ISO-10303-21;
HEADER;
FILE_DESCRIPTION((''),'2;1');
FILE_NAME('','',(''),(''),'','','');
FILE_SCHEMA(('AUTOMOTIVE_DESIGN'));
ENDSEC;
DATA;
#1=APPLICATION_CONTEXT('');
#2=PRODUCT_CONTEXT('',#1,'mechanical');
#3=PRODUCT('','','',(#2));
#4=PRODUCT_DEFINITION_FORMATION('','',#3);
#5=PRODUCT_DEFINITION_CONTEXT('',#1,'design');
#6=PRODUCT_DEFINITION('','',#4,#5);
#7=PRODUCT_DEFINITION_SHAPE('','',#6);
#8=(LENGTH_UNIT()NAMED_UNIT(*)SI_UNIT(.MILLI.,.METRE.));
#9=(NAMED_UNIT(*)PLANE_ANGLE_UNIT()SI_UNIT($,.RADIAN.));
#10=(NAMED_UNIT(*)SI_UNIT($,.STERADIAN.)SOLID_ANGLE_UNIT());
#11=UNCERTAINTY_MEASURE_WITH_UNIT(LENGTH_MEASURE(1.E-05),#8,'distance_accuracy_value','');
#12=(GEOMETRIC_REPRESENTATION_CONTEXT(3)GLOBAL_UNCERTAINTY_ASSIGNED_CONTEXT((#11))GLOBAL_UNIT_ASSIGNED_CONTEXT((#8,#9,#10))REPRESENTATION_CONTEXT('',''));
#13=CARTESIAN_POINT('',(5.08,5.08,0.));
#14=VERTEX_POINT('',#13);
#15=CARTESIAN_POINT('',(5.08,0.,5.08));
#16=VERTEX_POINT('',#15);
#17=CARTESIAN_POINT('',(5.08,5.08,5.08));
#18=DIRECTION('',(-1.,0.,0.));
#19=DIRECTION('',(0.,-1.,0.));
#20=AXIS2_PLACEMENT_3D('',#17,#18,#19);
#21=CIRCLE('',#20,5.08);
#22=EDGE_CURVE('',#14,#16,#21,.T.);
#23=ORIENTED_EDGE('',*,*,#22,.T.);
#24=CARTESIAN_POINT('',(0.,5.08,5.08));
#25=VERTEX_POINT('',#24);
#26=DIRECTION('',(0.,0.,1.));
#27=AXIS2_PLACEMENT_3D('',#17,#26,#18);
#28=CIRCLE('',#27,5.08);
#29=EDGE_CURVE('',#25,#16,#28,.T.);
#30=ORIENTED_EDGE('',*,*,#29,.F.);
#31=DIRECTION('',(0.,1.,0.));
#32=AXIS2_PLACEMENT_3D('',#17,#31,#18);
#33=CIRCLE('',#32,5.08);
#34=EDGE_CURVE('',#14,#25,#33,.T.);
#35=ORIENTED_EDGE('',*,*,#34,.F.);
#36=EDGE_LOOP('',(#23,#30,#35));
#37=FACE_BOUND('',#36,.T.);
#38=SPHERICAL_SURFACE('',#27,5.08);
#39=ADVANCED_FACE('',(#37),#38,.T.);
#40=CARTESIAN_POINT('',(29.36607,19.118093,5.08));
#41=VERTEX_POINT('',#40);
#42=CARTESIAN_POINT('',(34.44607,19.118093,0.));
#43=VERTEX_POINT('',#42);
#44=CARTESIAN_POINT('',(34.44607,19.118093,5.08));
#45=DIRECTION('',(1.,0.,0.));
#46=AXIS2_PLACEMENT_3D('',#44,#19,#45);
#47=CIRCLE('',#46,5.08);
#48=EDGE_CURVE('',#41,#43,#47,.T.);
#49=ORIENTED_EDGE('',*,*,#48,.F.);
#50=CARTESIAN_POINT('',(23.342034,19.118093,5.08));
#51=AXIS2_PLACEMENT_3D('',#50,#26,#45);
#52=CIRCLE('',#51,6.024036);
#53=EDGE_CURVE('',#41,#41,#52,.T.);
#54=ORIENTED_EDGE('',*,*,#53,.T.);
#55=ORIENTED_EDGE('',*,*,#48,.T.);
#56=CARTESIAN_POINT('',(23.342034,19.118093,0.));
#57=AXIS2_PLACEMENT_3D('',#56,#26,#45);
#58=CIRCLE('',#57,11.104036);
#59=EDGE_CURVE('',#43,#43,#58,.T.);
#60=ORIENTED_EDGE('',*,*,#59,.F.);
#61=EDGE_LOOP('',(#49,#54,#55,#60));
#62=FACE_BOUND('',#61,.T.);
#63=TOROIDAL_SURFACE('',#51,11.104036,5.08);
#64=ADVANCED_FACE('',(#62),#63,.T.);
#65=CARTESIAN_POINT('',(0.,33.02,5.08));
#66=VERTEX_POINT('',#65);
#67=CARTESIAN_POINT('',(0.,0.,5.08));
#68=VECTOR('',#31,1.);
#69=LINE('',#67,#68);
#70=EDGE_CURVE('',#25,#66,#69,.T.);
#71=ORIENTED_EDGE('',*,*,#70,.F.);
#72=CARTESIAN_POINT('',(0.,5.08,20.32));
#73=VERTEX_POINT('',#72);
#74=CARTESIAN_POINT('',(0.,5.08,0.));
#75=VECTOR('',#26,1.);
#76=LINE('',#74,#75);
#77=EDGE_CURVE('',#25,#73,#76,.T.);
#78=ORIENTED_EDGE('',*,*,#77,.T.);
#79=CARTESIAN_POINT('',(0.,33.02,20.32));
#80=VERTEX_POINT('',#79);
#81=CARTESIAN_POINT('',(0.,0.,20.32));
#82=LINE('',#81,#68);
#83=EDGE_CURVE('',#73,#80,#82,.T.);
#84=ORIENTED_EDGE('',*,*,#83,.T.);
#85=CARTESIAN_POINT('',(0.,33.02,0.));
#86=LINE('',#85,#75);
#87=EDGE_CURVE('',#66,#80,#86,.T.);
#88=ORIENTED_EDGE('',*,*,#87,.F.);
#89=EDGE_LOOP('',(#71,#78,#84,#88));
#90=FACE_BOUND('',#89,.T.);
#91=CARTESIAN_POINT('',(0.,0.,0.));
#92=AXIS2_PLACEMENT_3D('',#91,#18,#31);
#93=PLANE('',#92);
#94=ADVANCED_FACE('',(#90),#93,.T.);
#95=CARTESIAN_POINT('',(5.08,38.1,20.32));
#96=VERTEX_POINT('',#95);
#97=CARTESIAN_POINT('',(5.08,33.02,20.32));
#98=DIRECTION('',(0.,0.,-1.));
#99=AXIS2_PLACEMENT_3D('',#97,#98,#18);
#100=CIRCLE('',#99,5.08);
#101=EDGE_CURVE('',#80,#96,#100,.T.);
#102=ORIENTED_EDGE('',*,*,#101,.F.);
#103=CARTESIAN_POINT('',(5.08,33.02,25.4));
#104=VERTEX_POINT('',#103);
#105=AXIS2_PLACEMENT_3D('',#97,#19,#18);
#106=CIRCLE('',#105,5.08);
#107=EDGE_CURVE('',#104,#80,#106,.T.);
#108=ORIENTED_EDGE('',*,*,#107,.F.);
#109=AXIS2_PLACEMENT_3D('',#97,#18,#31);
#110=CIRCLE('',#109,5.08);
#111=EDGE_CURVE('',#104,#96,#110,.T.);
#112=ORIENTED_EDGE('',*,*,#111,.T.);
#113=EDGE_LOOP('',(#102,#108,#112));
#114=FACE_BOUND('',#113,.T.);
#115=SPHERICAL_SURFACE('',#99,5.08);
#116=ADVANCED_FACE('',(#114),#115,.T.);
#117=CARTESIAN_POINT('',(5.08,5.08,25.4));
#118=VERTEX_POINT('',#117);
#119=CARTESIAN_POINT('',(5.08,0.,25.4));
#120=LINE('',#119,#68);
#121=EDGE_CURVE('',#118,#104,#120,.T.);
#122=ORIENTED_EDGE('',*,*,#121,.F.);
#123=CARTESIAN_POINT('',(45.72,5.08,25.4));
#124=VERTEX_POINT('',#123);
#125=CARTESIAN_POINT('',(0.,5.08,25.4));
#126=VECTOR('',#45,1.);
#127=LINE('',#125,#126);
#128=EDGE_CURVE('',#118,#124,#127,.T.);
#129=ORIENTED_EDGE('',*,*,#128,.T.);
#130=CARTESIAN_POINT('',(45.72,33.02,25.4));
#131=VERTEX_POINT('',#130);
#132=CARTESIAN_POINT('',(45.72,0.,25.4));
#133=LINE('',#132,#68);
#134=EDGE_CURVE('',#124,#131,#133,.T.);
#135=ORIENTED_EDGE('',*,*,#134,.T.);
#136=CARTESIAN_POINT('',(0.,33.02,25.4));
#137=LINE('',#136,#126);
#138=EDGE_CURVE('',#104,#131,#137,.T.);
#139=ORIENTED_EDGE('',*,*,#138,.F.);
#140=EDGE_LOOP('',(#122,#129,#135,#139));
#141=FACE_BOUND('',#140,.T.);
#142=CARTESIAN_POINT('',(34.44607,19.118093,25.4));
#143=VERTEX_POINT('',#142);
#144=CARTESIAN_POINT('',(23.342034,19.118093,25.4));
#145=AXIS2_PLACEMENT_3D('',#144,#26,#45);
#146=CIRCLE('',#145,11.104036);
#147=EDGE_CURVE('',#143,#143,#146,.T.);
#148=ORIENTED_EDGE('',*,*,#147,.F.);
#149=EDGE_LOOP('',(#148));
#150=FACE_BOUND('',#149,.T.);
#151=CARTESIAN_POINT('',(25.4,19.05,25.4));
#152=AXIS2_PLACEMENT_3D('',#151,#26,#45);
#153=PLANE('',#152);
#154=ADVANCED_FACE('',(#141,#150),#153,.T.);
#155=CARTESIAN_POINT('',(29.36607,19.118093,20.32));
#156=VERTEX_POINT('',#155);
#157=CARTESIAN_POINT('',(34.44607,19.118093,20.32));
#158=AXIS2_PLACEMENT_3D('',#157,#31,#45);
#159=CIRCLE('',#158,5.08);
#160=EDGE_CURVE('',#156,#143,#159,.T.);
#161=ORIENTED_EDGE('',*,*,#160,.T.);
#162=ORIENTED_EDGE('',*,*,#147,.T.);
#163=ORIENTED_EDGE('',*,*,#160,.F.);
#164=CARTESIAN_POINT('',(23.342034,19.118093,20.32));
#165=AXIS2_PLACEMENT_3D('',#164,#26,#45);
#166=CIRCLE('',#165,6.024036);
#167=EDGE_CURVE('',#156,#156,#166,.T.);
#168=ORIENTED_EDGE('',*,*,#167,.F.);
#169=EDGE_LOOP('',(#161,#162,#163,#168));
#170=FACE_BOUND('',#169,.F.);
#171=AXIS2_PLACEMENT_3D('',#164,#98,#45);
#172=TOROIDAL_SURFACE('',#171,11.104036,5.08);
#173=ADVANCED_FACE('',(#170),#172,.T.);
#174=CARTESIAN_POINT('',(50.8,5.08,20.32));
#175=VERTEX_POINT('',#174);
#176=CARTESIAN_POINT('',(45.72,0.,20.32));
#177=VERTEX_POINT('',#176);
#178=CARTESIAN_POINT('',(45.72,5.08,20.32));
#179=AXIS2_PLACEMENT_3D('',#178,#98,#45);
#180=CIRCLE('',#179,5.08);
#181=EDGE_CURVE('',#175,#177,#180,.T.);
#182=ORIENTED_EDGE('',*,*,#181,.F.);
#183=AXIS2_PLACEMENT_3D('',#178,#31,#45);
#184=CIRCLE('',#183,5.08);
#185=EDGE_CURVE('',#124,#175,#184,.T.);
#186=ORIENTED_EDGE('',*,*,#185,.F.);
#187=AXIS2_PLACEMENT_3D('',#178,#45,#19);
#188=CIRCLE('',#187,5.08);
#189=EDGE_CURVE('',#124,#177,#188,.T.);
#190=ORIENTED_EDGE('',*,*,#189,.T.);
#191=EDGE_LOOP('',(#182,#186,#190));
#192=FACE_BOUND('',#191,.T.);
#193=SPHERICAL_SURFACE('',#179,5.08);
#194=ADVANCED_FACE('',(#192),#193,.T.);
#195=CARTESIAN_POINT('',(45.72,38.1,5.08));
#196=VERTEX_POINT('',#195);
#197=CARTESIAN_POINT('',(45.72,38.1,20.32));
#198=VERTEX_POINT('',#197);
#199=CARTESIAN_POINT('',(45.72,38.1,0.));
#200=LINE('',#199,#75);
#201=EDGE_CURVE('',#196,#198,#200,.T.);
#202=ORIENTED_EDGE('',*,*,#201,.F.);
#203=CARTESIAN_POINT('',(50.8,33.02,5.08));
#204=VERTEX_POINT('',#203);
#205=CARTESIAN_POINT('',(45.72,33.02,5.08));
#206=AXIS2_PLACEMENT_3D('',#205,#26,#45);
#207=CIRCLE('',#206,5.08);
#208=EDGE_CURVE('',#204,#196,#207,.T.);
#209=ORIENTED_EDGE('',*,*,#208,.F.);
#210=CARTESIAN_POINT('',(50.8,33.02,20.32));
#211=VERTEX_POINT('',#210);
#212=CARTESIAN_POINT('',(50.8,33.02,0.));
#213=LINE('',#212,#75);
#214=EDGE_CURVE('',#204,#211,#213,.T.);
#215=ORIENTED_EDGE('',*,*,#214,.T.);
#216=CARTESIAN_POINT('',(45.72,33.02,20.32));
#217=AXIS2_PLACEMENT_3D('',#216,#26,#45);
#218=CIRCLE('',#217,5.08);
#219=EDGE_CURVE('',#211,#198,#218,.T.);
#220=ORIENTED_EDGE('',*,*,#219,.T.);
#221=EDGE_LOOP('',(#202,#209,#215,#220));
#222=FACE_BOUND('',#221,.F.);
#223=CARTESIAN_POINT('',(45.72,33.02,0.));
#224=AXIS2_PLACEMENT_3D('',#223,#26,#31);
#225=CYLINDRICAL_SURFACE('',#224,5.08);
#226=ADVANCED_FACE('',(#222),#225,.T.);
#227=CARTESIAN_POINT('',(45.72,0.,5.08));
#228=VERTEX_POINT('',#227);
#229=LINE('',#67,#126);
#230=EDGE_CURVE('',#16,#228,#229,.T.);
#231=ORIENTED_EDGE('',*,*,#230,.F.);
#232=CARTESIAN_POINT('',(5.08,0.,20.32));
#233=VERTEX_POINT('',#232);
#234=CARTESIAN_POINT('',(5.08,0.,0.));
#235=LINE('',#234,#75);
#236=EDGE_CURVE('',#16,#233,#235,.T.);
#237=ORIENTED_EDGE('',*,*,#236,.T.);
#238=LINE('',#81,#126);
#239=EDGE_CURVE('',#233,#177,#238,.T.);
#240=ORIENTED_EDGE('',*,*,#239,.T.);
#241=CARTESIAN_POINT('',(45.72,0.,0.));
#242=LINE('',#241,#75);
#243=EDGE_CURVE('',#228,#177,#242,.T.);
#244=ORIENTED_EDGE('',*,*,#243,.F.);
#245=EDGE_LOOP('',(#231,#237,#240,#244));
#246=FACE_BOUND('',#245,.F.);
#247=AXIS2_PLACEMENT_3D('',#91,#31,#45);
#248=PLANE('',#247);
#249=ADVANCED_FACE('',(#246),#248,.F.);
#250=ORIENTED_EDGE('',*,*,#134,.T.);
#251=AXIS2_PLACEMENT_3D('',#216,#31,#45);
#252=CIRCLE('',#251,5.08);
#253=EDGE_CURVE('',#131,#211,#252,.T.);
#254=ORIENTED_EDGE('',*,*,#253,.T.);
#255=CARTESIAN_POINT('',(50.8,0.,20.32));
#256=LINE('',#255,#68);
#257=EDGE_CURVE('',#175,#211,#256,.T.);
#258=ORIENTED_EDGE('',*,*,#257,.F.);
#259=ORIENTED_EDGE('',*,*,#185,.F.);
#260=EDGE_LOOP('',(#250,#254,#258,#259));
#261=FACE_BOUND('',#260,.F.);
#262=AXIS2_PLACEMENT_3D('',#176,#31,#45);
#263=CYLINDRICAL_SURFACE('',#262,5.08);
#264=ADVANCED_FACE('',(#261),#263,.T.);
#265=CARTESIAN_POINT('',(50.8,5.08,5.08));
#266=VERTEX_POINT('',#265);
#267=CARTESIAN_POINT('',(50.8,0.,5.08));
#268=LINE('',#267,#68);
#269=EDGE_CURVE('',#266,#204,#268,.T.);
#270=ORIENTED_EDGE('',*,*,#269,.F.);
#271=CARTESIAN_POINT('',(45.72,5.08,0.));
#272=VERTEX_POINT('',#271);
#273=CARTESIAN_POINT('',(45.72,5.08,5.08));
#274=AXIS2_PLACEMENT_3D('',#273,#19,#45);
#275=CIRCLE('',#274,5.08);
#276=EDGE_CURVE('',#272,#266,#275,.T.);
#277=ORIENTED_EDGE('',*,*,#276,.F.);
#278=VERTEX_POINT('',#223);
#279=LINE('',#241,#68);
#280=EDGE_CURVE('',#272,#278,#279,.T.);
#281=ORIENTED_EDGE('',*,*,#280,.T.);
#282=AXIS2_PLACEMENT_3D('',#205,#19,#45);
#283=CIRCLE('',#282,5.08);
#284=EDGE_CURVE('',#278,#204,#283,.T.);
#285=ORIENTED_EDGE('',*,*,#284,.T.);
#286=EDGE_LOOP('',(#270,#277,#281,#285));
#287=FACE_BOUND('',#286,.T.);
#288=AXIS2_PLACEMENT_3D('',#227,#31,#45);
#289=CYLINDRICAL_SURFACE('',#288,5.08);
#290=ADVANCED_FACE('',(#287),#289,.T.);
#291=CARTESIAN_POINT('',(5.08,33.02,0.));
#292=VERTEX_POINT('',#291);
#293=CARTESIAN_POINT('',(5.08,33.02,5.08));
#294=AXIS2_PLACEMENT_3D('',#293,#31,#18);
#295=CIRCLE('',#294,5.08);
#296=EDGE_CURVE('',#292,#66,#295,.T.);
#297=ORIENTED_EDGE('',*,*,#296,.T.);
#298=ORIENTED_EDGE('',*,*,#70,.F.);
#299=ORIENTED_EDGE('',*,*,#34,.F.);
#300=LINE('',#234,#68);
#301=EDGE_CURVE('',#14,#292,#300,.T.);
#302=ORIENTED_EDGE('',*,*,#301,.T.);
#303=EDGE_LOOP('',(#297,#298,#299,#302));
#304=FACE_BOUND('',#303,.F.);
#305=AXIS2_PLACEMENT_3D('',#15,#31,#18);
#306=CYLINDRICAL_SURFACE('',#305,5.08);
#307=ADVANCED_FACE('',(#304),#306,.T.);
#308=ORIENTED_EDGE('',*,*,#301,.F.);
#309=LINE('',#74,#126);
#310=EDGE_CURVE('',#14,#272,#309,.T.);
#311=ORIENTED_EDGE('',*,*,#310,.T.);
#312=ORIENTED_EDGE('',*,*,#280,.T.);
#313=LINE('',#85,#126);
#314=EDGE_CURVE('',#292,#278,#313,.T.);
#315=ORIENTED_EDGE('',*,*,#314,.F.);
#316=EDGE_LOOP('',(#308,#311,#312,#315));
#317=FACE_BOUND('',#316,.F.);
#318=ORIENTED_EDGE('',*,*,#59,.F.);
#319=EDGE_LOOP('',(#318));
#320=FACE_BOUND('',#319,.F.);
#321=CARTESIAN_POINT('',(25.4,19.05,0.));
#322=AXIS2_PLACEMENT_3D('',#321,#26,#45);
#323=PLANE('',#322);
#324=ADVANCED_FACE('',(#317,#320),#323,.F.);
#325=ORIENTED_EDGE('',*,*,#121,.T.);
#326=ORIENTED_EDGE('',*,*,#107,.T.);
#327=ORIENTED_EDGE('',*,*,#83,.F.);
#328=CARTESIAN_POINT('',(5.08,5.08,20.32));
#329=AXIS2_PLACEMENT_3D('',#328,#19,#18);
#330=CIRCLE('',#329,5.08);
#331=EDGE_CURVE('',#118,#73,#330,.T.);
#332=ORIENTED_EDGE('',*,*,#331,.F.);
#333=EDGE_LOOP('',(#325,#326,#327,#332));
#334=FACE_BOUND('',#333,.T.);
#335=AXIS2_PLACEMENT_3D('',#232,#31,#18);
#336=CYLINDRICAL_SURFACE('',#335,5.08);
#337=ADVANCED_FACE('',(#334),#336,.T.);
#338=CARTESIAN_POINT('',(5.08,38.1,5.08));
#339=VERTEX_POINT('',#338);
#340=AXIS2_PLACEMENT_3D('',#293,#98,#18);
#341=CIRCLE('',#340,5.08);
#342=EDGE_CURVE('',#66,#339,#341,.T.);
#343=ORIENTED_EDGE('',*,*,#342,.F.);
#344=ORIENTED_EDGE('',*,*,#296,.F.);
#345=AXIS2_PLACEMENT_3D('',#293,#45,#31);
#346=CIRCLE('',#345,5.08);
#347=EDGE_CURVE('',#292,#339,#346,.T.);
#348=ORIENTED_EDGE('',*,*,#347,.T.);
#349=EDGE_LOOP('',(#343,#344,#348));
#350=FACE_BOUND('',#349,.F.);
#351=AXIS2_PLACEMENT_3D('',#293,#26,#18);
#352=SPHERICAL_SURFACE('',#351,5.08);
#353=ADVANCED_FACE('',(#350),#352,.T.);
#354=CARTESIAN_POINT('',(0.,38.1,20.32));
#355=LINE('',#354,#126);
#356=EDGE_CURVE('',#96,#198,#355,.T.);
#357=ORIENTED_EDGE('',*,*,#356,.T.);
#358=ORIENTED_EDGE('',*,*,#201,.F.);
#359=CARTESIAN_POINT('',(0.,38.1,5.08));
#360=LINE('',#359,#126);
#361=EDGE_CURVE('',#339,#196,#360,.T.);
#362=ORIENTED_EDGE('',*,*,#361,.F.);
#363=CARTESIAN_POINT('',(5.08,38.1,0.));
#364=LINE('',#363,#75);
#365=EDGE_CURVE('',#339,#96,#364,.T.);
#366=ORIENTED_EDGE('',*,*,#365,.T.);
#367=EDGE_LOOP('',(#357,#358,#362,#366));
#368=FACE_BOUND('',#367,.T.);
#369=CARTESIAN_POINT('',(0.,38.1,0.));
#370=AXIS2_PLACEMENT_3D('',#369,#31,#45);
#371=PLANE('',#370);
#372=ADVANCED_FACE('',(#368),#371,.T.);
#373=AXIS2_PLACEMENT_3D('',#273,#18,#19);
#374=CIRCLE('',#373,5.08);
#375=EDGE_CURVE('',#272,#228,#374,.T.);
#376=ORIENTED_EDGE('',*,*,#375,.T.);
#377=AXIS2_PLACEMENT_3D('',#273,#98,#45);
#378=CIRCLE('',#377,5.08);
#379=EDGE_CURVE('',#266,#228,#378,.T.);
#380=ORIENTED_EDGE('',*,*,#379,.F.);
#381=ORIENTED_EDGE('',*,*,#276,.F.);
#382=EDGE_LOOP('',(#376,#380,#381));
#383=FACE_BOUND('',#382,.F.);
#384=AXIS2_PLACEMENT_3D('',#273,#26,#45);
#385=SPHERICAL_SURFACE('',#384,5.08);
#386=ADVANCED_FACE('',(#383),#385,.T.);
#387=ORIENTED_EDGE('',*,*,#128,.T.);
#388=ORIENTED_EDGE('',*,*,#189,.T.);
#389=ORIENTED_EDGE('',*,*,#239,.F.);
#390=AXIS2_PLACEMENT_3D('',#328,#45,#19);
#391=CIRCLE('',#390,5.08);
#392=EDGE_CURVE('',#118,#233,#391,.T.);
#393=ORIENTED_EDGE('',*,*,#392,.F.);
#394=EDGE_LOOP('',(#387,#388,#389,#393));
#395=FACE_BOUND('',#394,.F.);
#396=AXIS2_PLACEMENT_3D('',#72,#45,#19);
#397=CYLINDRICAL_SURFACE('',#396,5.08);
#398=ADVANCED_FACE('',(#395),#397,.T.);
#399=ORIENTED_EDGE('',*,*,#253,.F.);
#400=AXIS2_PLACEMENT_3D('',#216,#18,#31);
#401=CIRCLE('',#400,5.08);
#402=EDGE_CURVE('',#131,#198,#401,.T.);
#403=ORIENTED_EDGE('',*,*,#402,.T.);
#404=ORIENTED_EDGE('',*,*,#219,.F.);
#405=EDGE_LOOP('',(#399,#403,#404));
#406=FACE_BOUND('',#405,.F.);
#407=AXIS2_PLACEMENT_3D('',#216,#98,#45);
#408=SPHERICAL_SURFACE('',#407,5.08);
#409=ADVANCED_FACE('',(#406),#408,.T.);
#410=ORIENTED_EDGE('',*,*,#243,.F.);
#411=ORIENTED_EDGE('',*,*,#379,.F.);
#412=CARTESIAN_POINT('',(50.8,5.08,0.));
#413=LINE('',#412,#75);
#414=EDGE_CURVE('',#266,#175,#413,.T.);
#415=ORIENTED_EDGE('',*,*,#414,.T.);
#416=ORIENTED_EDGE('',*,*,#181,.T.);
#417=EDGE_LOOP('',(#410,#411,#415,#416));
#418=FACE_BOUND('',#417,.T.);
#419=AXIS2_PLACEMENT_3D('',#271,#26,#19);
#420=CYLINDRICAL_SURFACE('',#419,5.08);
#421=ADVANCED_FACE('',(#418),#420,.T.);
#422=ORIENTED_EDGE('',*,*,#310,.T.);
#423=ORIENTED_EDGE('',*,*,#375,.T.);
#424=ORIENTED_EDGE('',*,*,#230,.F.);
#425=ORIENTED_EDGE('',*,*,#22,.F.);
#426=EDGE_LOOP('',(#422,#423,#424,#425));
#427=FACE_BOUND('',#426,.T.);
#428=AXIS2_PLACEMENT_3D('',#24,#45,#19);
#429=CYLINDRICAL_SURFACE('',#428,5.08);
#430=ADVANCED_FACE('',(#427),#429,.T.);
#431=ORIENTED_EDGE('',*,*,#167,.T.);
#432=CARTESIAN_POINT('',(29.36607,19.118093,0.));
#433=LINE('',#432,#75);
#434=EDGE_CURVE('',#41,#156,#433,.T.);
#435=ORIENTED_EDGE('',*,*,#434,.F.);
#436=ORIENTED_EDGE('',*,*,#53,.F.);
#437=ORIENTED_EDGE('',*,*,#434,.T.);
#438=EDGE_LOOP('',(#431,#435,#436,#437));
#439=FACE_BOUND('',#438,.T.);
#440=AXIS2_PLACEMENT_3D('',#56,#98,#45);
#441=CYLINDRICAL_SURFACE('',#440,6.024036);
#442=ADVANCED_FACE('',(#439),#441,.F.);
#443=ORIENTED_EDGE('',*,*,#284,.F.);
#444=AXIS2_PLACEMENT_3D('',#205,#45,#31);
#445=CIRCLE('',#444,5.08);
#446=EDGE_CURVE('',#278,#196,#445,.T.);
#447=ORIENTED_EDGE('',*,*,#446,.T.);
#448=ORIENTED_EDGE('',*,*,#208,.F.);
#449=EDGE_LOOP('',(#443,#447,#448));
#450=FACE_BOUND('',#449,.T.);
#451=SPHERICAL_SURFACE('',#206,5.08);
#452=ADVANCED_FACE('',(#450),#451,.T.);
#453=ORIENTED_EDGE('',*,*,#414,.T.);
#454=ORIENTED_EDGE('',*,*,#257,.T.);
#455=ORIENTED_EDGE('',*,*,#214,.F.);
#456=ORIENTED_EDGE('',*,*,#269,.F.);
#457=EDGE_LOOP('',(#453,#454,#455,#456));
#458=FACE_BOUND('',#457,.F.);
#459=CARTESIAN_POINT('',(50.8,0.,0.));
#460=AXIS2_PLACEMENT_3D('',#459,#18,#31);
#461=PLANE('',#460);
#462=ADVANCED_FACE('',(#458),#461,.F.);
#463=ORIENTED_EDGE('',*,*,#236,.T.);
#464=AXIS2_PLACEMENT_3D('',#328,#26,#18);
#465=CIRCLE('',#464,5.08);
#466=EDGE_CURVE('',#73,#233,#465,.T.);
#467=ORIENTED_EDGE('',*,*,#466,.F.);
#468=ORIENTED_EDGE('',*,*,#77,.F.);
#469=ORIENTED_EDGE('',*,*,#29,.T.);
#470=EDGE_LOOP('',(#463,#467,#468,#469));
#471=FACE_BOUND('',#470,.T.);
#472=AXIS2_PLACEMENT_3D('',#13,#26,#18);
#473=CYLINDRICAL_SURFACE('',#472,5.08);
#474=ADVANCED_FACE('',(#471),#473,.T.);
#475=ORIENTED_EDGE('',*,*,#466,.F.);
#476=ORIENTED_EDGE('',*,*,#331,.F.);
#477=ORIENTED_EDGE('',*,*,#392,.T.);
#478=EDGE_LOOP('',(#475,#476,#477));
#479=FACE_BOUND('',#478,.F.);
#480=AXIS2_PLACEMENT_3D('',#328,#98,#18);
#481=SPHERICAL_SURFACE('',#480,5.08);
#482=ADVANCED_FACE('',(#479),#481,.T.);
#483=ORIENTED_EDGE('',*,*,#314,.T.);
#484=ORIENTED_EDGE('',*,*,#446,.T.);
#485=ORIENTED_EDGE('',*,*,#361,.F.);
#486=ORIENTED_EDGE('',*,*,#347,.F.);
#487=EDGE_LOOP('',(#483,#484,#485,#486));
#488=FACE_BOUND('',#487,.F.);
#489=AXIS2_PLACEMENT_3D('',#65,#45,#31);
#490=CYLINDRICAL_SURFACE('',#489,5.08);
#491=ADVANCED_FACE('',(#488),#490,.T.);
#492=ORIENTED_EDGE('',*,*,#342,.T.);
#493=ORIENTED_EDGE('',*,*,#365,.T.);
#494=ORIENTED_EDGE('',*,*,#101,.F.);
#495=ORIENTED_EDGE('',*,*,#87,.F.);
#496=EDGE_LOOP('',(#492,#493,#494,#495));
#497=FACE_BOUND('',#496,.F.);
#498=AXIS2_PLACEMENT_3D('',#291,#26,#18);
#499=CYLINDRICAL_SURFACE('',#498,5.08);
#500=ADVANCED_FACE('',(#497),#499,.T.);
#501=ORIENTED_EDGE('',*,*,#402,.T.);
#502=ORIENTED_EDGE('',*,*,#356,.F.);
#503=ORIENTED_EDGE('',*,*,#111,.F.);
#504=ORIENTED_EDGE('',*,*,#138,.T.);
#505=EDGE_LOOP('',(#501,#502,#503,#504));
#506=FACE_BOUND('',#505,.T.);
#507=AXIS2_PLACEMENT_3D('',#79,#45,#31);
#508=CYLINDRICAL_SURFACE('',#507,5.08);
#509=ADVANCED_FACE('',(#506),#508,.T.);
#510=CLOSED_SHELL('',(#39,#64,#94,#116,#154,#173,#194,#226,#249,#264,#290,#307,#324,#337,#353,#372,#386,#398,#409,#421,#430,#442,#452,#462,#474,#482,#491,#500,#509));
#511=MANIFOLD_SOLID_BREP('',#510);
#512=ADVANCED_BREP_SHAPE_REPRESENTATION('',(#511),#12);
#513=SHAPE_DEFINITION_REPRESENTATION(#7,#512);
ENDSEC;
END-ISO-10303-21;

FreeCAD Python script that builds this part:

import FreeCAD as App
import Part
import Sketcher
Q = App.Units.Quantity

doc = App.newDocument("Part")
body = doc.addObject("PartDesign::Body", "Body")

sketch1 = body.newObject("Sketcher::SketchObject", "Sketch")
sketch1.AttachmentSupport = (doc.getObject("XY_Plane"), [""])
sketch1.MapMode = "FlatFace"
sketch1.addGeometry(Part.LineSegment(App.Vector(0, 38, 0), App.Vector(0, 0, 0)), False)
sketch1.addGeometry(Part.LineSegment(App.Vector(0, 0, 0), App.Vector(51, 0, 0)), False)
sketch1.addGeometry(Part.LineSegment(App.Vector(51, 0, 0), App.Vector(51, 38, 0)), False)
sketch1.addGeometry(Part.LineSegment(App.Vector(51, 38, 0), App.Vector(0, 38, 0)), False)
sketch1.addGeometry(Part.Circle(App.Vector(23, 19, 0), App.Vector(0, 0, 1), 6), False)
sketch1.addConstraint(Sketcher.Constraint("Coincident", 0, 2, 1, 1))
sketch1.addConstraint(Sketcher.Constraint("Coincident", 1, 2, 2, 1))
sketch1.addConstraint(Sketcher.Constraint("Coincident", 2, 2, 3, 1))
sketch1.addConstraint(Sketcher.Constraint("Coincident", 3, 2, 0, 1))
sketch1.addConstraint(Sketcher.Constraint("Vertical", 0))
sketch1.addConstraint(Sketcher.Constraint("Horizontal", 1))
sketch1.addConstraint(Sketcher.Constraint("Vertical", 2))
sketch1.addConstraint(Sketcher.Constraint("Horizontal", 3))
sketch1.addConstraint(Sketcher.Constraint("Coincident", 0, 2, -1, 1))
sketch1.addConstraint(Sketcher.Constraint("DistanceX", 1, 1, 1, 2, Q("2 in")))
sketch1.addConstraint(Sketcher.Constraint("DistanceY", 0, 2, 0, 1, Q("1.5 in")))
sketch1.addConstraint(Sketcher.Constraint("Diameter", 4, 12.048072))
sketch1.addConstraint(Sketcher.Constraint("DistanceX", -1, 1, 4, 3, 23.342034))
sketch1.addConstraint(Sketcher.Constraint("DistanceY", -1, 1, 4, 3, 19.118093))
pad1 = body.newObject("PartDesign::Pad", "Pad")
pad1.Profile = sketch1
pad1.Length = Q("1 in")
doc.recompute()

fillet = body.newObject("PartDesign::Fillet", "Fillet")
fillet.Base = (pad1, ["Edge1"])
fillet.UseAllEdges = True
fillet.Radius = Q("0.2 in")

doc.recompute()
